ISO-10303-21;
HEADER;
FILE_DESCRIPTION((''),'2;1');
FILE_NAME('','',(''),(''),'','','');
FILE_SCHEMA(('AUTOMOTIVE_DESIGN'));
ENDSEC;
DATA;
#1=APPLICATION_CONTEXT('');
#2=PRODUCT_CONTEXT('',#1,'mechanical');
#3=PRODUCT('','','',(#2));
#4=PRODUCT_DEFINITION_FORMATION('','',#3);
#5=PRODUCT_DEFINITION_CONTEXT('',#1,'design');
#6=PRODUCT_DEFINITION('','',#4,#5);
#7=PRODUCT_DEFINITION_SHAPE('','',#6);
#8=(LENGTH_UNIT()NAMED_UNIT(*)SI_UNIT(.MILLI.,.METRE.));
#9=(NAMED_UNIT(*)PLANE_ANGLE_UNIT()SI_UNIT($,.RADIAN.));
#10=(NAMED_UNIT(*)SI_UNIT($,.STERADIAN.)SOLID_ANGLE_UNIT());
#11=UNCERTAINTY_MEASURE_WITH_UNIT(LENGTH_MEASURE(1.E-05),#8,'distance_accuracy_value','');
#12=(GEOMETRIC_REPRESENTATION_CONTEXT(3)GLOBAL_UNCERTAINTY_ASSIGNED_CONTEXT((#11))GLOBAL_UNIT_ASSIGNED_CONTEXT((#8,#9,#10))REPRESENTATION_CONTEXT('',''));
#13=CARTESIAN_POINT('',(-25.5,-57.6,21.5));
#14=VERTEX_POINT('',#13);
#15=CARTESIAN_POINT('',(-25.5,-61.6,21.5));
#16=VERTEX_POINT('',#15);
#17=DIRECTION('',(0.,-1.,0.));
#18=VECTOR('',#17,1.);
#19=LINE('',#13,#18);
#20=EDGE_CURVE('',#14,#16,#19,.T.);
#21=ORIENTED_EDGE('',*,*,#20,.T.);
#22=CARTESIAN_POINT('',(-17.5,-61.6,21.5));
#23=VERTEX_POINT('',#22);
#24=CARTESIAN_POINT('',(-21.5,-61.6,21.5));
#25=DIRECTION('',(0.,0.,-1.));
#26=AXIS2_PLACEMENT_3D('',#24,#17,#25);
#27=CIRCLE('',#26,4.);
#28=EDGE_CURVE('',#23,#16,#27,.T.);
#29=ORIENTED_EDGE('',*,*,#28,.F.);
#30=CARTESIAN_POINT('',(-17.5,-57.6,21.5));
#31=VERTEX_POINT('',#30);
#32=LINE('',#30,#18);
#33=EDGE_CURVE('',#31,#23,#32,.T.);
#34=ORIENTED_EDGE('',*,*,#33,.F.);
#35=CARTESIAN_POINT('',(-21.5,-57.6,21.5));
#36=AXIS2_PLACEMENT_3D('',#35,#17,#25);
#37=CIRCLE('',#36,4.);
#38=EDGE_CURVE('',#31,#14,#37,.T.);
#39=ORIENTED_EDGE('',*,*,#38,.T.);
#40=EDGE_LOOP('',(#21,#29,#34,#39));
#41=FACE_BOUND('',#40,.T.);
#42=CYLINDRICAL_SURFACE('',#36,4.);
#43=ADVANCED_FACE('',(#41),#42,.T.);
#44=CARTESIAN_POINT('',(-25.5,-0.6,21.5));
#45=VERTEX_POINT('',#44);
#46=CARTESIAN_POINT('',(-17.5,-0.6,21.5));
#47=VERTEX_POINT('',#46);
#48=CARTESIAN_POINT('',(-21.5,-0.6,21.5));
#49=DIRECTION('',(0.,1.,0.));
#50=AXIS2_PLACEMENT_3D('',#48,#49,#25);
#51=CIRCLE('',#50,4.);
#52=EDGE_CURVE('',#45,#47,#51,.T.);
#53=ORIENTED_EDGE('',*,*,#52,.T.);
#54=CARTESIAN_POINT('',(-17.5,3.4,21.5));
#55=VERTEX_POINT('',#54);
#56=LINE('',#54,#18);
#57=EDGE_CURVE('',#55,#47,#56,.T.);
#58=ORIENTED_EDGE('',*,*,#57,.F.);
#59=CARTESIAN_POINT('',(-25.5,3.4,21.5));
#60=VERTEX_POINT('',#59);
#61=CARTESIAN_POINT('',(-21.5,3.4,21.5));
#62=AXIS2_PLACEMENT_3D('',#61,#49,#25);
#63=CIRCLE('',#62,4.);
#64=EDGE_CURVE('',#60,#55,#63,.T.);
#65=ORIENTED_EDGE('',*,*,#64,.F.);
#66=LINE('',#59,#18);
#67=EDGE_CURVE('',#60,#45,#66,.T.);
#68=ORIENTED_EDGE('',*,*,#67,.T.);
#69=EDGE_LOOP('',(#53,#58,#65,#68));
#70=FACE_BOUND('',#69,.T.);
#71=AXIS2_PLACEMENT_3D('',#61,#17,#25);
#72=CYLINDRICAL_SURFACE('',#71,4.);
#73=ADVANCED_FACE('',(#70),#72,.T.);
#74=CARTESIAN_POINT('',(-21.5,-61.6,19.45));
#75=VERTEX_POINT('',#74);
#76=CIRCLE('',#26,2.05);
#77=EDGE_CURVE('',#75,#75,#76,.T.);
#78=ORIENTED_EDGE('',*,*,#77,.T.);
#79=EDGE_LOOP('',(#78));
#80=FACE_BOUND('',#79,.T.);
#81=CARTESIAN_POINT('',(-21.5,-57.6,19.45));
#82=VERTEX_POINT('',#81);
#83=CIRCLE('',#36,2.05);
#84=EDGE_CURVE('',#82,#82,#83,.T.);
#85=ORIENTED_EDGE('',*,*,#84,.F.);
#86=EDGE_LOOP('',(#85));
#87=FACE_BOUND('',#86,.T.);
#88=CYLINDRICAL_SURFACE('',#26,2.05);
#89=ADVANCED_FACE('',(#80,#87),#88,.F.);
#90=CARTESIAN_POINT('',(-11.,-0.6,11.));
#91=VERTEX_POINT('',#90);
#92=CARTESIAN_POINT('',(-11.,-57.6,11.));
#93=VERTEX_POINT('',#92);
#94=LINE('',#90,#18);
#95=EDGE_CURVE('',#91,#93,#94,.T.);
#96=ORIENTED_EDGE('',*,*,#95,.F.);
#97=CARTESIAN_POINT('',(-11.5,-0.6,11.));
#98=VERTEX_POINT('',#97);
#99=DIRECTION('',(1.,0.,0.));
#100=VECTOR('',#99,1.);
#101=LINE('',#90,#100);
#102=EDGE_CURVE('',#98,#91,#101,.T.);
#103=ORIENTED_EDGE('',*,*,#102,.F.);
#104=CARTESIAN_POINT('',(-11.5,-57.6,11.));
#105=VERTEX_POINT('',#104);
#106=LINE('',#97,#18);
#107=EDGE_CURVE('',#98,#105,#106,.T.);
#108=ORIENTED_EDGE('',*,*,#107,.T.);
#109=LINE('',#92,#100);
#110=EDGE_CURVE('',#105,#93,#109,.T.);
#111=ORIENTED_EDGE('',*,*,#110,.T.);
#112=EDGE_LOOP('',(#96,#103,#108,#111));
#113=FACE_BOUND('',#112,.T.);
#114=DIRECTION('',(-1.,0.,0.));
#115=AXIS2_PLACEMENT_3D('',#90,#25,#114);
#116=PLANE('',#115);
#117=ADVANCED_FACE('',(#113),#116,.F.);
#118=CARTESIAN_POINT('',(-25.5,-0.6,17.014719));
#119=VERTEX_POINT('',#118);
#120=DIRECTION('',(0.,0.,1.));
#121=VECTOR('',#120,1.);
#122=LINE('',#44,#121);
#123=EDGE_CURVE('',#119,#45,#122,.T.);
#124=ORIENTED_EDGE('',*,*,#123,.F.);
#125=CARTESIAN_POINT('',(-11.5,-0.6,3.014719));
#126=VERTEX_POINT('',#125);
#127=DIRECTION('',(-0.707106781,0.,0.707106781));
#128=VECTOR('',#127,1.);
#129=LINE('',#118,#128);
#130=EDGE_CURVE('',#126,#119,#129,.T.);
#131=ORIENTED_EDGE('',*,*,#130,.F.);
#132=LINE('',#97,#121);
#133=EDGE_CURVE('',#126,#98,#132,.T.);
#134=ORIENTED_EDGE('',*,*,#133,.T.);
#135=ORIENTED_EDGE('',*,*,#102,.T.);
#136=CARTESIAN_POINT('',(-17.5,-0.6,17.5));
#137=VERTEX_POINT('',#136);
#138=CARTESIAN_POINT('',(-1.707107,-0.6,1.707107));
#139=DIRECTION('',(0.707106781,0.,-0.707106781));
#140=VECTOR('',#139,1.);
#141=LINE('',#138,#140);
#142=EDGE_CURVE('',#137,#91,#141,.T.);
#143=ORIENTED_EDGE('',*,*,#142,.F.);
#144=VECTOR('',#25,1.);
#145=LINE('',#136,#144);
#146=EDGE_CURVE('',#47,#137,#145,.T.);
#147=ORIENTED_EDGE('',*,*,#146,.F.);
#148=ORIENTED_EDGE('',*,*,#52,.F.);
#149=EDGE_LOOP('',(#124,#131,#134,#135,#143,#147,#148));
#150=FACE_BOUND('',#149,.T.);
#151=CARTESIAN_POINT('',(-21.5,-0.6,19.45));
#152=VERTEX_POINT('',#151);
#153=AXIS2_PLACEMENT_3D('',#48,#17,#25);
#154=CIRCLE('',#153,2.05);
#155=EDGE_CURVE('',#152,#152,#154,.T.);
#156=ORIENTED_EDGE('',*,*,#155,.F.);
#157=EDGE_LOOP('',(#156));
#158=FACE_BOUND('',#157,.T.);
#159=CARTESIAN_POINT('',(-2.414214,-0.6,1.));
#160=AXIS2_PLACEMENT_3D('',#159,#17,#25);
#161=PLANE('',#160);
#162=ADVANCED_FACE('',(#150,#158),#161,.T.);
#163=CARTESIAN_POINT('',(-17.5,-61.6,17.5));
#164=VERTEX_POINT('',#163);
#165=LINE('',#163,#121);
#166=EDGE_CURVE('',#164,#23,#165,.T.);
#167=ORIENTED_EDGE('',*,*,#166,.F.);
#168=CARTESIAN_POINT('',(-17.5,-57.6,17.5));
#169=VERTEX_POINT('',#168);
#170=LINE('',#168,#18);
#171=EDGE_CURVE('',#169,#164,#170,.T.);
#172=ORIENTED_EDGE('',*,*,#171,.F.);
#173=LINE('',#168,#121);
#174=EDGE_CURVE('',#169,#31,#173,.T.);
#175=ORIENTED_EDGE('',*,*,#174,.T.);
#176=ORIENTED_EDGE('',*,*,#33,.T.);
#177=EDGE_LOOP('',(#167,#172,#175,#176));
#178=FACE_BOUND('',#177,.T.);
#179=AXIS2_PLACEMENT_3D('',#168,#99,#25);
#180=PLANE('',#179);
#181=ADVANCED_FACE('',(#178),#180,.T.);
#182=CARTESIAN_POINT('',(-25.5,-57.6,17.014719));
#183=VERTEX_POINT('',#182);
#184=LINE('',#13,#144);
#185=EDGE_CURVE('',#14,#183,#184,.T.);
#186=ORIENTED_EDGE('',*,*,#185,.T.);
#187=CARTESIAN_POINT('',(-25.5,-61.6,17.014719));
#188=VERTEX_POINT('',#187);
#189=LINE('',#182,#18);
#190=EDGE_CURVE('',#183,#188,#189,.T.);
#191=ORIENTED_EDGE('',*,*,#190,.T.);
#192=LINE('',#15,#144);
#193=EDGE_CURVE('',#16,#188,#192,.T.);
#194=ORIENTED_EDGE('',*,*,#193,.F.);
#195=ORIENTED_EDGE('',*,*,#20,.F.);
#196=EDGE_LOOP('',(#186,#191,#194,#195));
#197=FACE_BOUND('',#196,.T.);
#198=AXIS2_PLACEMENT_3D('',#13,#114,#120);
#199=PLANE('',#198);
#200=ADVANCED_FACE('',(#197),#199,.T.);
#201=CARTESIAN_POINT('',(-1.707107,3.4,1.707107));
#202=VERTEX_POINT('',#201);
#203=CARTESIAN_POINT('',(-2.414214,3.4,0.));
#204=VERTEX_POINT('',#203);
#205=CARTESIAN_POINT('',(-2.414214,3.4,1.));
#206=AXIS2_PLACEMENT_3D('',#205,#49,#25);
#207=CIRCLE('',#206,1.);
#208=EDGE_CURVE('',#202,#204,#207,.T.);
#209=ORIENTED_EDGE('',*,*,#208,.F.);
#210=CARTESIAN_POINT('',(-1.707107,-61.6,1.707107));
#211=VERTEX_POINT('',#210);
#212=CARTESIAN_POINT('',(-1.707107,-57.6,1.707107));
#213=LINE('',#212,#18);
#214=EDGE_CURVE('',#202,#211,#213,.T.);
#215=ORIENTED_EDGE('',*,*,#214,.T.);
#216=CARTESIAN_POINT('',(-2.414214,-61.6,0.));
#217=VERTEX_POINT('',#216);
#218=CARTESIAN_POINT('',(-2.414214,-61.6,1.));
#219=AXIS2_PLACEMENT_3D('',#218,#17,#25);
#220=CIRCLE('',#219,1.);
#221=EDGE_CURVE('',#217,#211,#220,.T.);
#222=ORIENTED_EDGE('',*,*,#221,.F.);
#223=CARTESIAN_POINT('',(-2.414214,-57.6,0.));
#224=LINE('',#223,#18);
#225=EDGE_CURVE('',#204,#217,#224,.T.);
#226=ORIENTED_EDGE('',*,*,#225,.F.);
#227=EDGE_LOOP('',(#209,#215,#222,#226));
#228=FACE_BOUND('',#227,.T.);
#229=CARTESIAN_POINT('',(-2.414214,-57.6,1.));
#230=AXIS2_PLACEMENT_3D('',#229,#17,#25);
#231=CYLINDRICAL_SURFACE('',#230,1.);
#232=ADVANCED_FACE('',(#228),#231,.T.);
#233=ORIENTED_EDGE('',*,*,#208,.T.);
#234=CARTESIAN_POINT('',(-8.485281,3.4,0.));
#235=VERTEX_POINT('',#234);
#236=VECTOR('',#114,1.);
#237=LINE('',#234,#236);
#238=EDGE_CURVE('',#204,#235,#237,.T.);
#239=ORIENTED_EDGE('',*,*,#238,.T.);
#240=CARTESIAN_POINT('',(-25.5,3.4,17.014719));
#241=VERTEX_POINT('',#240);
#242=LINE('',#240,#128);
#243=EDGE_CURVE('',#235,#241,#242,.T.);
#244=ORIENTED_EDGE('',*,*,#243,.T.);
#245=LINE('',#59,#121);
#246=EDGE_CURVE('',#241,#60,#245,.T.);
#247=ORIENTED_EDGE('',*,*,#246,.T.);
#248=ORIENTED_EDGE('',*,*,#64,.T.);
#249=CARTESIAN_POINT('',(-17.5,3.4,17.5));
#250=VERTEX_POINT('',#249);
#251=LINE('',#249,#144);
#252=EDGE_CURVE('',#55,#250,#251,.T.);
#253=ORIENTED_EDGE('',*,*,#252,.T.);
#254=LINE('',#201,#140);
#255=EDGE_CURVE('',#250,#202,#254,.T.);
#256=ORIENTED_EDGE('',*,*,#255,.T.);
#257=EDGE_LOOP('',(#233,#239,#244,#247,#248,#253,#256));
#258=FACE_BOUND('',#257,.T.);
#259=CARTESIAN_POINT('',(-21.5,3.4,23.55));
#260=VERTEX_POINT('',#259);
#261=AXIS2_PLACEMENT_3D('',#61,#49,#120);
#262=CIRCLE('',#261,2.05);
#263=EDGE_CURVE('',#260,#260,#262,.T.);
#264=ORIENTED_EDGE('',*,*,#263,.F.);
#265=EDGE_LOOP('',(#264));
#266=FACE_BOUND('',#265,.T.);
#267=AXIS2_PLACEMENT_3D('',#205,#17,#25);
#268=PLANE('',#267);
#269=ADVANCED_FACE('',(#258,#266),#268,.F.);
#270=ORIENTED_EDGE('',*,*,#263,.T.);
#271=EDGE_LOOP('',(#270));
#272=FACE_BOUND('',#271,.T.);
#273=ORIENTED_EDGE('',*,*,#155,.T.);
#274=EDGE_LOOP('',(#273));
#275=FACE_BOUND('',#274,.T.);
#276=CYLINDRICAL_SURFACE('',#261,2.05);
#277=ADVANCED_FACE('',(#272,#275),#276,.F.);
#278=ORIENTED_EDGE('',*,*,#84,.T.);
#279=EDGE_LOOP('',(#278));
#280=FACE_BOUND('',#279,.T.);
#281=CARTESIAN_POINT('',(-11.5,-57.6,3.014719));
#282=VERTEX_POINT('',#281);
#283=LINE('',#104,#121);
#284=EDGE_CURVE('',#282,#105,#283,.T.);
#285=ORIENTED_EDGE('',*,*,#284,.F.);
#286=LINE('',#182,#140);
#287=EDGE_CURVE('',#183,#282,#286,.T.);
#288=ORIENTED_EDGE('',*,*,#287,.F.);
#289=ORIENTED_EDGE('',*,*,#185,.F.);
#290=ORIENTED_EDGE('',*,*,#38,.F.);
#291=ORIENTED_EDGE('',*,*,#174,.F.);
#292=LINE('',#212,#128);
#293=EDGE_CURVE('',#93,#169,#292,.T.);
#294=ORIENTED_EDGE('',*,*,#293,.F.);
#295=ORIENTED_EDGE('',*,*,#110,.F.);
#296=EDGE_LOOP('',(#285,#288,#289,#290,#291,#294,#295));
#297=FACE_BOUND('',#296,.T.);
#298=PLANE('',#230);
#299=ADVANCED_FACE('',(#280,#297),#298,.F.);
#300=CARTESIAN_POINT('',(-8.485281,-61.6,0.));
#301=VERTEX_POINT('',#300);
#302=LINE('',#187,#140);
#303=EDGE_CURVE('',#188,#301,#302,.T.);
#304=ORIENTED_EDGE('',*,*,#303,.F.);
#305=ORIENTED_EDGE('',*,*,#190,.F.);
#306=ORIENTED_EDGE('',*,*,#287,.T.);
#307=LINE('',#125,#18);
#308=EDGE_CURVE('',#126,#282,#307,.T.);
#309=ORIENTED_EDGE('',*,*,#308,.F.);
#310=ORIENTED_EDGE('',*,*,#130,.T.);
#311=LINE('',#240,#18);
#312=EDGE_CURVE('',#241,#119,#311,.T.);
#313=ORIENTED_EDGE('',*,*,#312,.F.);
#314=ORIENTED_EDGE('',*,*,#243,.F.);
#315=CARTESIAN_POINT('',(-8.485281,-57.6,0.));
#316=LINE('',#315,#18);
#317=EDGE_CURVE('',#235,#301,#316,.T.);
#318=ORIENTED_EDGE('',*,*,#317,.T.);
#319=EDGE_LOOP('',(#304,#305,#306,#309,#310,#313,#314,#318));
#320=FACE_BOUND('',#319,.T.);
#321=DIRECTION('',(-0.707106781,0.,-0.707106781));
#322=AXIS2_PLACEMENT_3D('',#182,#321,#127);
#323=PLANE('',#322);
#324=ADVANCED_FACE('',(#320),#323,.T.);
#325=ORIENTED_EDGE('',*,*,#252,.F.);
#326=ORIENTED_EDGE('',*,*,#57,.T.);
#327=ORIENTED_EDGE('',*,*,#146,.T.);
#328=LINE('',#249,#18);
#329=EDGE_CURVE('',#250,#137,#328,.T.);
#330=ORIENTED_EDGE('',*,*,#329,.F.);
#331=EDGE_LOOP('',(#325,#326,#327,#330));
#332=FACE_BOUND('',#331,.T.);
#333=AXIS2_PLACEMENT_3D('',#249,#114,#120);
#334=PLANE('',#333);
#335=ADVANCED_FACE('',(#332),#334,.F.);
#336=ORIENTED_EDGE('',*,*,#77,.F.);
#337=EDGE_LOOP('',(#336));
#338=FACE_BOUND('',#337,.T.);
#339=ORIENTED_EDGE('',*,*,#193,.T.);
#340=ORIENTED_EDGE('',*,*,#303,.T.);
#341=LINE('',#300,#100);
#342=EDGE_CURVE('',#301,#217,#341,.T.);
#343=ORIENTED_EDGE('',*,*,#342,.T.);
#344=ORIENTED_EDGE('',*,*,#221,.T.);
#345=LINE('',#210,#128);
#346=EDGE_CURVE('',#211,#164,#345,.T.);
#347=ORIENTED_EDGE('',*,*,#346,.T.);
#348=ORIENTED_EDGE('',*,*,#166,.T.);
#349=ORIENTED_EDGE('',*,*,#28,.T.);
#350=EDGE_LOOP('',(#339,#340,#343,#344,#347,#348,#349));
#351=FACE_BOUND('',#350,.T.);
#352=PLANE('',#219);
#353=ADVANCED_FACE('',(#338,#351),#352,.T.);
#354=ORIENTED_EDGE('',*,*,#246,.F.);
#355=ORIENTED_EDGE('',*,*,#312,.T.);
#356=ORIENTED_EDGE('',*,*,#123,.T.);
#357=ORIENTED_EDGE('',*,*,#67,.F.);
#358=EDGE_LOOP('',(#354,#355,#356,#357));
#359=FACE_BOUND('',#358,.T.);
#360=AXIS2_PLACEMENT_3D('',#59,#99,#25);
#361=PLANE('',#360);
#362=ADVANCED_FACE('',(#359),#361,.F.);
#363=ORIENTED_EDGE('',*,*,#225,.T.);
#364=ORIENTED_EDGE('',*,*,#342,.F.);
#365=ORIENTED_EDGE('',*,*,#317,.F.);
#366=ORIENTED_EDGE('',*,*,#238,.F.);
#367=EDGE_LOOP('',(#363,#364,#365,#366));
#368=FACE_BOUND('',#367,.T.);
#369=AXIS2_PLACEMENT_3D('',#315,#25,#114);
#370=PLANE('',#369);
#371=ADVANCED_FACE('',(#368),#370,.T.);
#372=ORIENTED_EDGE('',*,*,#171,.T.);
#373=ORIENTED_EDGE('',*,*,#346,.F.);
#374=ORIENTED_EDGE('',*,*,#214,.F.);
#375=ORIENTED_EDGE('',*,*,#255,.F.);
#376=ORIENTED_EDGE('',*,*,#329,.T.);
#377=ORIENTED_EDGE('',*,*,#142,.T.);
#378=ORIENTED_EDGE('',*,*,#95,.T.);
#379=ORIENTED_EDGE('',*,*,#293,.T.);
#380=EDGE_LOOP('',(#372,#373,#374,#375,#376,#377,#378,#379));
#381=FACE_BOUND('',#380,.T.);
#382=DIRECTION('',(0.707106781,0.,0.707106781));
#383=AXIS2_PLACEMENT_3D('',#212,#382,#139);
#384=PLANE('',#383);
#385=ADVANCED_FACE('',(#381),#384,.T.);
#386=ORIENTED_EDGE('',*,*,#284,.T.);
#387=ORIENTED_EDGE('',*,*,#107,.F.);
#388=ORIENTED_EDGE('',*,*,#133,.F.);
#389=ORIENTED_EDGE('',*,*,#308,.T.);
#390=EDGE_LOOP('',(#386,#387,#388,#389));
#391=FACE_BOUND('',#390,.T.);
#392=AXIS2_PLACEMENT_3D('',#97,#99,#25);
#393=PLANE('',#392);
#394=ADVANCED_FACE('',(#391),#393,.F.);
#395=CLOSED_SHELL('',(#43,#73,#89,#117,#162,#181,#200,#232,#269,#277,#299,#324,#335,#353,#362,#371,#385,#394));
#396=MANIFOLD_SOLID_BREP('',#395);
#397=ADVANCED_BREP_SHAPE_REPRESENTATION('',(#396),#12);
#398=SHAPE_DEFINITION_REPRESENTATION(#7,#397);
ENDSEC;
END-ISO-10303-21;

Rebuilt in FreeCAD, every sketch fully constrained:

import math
import FreeCAD as App
import Part
import Sketcher

V = App.Vector
Q = App.Units.Quantity

doc = App.newDocument("Part")
body = doc.addObject("PartDesign::Body", "Body")

# Sketch on XZ plane
sketch1 = body.newObject("Sketcher::SketchObject", "Sketch")
sketch1.AttachmentSupport = (doc.getObject("XZ_Plane"), [""])
sketch1.MapMode = "FlatFace"
sketch1.AttachmentOffset = App.Placement(V(0, 0, 61.6), App.Rotation())
sketch1.addGeometry([
    Part.LineSegment(V(-25.5, 17, 0), V(-8.5, 0, 0)),  # 0
    Part.LineSegment(V(-8.5, 0, 0), V(-2.4, 0, 0)),  # 1
    Part.ArcOfCircle(Part.Circle(V(-2.4, 1, 0), V(0, 0, 1), 1), math.radians(-90), math.radians(45)),  # 2
    Part.LineSegment(V(-1.7, 1.7, 0), V(-17.5, 17.5, 0)),  # 3
    Part.LineSegment(V(-17.5, 17.5, 0), V(-17.5, 21.5, 0)),  # 4
    Part.ArcOfCircle(Part.Circle(V(-21.5, 21.5, 0), V(0, 0, 1), 4), math.radians(0), math.radians(180)),  # 5
    Part.LineSegment(V(-25.5, 21.5, 0), V(-25.5, 17, 0)),  # 6
], False)
sketch1.addConstraint([
    Sketcher.Constraint("Coincident", 0, 2, 1, 1),
    Sketcher.Constraint("Tangent", 1, 2, 2, 1),
    Sketcher.Constraint("Tangent", 2, 2, 3, 1),
    Sketcher.Constraint("Coincident", 3, 2, 4, 1),
    Sketcher.Constraint("Tangent", 4, 2, 5, 1),
    Sketcher.Constraint("Tangent", 5, 2, 6, 1),
    Sketcher.Constraint("Coincident", 6, 2, 0, 1),
    Sketcher.Constraint("Horizontal", 1),
    Sketcher.Constraint("Vertical", 4),
    Sketcher.Constraint("Vertical", 6),
    Sketcher.Constraint("PointOnObject", 0, 2, -1),
    Sketcher.Constraint("Parallel", 0, 3),
    Sketcher.Constraint("Radius", 2, Q("1 mm")),
    Sketcher.Constraint("Radius", 5, Q("4 mm")),
    Sketcher.Constraint("DistanceY", 4, 1, 4, 2, Q("4 mm")),
    Sketcher.Constraint("Angle", 0, Q("-45 deg")),
    Sketcher.Constraint("DistanceX", 5, 3, -1, 1, Q("21.5 mm")),
    Sketcher.Constraint("DistanceY", -1, 1, 5, 3, Q("21.5 mm")),
    Sketcher.Constraint("DistanceY", 6, 2, 6, 1, Q("4.485281 mm")),
])
pad1 = body.newObject("PartDesign::Pad", "Pad")
pad1.Profile = sketch1
pad1.Length = 4
pad1.Reversed = True

# Sketch on XZ plane
sketch2 = body.newObject("Sketcher::SketchObject", "Sketch001")
sketch2.AttachmentSupport = (doc.getObject("XZ_Plane"), [""])
sketch2.MapMode = "FlatFace"
sketch2.AttachmentOffset = App.Placement(V(0, 0, 57.6), App.Rotation())
sketch2.addGeometry([
    Part.LineSegment(V(-11, 11, 0), V(-1.71, 1.71, 0)),  # 0
    Part.ArcOfCircle(Part.Circle(V(-2.41, 1, 0), V(0, 0, 1), 1), math.radians(-90), math.radians(45)),  # 1
    Part.LineSegment(V(-2.41, 0, 0), V(-8.49, 0, 0)),  # 2
    Part.LineSegment(V(-8.49, 0, 0), V(-11.5, 3.01, 0)),  # 3
    Part.LineSegment(V(-11.5, 3.01, 0), V(-11.5, 11, 0)),  # 4
    Part.LineSegment(V(-11.5, 11, 0), V(-11, 11, 0)),  # 5
], False)
sketch2.addConstraint([
    Sketcher.Constraint("Tangent", 0, 2, 1, 2),
    Sketcher.Constraint("Tangent", 1, 1, 2, 1),
    Sketcher.Constraint("Coincident", 2, 2, 3, 1),
    Sketcher.Constraint("Coincident", 3, 2, 4, 1),
    Sketcher.Constraint("Coincident", 4, 2, 5, 1),
    Sketcher.Constraint("Coincident", 5, 2, 0, 1),
    Sketcher.Constraint("Horizontal", 2),
    Sketcher.Constraint("Vertical", 4),
    Sketcher.Constraint("Horizontal", 5),
    Sketcher.Constraint("PointOnObject", 1, 1, -1),
    Sketcher.Constraint("Parallel", 0, 3),
    Sketcher.Constraint("Radius", 1, Q("1 mm")),
    Sketcher.Constraint("Angle", 0, Q("-45 deg")),
    Sketcher.Constraint("DistanceX", 5, 1, 5, 2, Q("0.5 mm")),
    Sketcher.Constraint("DistanceY", -1, 1, 4, 2, Q("11 mm")),
    Sketcher.Constraint("DistanceX", 5, 2, -1, 1, Q("11 mm")),
    Sketcher.Constraint("DistanceY", 4, 1, 4, 2, Q("7.985281 mm")),
])
pad2 = body.newObject("PartDesign::Pad", "Pad001")
pad2.Profile = sketch2
pad2.Length = 57
pad2.Reversed = True

# Sketch on XZ plane
sketch3 = body.newObject("Sketcher::SketchObject", "Sketch002")
sketch3.AttachmentSupport = (doc.getObject("XZ_Plane"), [""])
sketch3.MapMode = "FlatFace"
sketch3.AttachmentOffset = App.Placement(V(0, 0, 0.6), App.Rotation())
sketch3.addGeometry([
    Part.LineSegment(V(-2.4, 0, 0), V(-8.5, 0, 0)),  # 0
    Part.LineSegment(V(-8.5, 0, 0), V(-25.5, 17, 0)),  # 1
    Part.LineSegment(V(-25.5, 17, 0), V(-25.5, 21.5, 0)),  # 2
    Part.ArcOfCircle(Part.Circle(V(-21.5, 21.5, 0), V(0, 0, 1), 4), math.radians(0), math.radians(180)),  # 3
    Part.LineSegment(V(-17.5, 21.5, 0), V(-17.5, 17.5, 0)),  # 4
    Part.LineSegment(V(-17.5, 17.5, 0), V(-1.7, 1.7, 0)),  # 5
    Part.ArcOfCircle(Part.Circle(V(-2.4, 1, 0), V(0, 0, 1), 1), math.radians(-90), math.radians(45)),  # 6
], False)
sketch3.addConstraint([
    Sketcher.Constraint("Coincident", 0, 2, 1, 1),
    Sketcher.Constraint("Coincident", 1, 2, 2, 1),
    Sketcher.Constraint("Tangent", 2, 2, 3, 2),
    Sketcher.Constraint("Tangent", 3, 1, 4, 1),
    Sketcher.Constraint("Coincident", 4, 2, 5, 1),
    Sketcher.Constraint("Tangent", 5, 2, 6, 2),
    Sketcher.Constraint("Tangent", 6, 1, 0, 1),
    Sketcher.Constraint("Horizontal", 0),
    Sketcher.Constraint("Vertical", 2),
    Sketcher.Constraint("Vertical", 4),
    Sketcher.Constraint("PointOnObject", 0, 2, -1),
    Sketcher.Constraint("Parallel", 1, 5),
    Sketcher.Constraint("Radius", 3, Q("4 mm")),
    Sketcher.Constraint("Radius", 6, Q("1 mm")),
    Sketcher.Constraint("DistanceY", 4, 2, 4, 1, Q("4 mm")),
    Sketcher.Constraint("Angle", 1, Q("135 deg")),
    Sketcher.Constraint("DistanceX", 3, 3, -1, 1, Q("21.5 mm")),
    Sketcher.Constraint("DistanceY", -1, 1, 3, 3, Q("21.5 mm")),
    Sketcher.Constraint("DistanceY", 2, 1, 2, 2, Q("4.485281 mm")),
])
pad3 = body.newObject("PartDesign::Pad", "Pad002")
pad3.Profile = sketch3
pad3.Length = 4
pad3.Reversed = True

# Sketch on XZ plane
sketch4 = body.newObject("Sketcher::SketchObject", "Sketch003")
sketch4.AttachmentSupport = (doc.getObject("XZ_Plane"), [""])
sketch4.MapMode = "FlatFace"
sketch4.AttachmentOffset = App.Placement(V(0, 0, -3.4), App.Rotation())
sketch4.addGeometry(Part.Circle(V(-21.5, 21.5, 0), V(0, 0, 1), 2), False)
sketch4.addConstraint([
    Sketcher.Constraint("Diameter", 0, Q("4.1 mm")),
    Sketcher.Constraint("DistanceX", 0, 3, -1, 1, Q("21.5 mm")),
    Sketcher.Constraint("DistanceY", -1, 1, 0, 3, Q("21.5 mm")),
])
doc.recompute()
hole = body.newObject("PartDesign::Hole", "Hole")
hole.Profile = sketch4
hole.ThreadType = "None"
hole.Diameter = 4.1
hole.DepthType = "Dimension"
hole.Depth = 4
hole.DrillPoint = "Flat"
hole.Reversed = True

# Sketch on XZ plane
sketch5 = body.newObject("Sketcher::SketchObject", "Sketch004")
sketch5.AttachmentSupport = (doc.getObject("XZ_Plane"), [""])
sketch5.MapMode = "FlatFace"
sketch5.AttachmentOffset = App.Placement(V(0, 0, 61.6), App.Rotation())
sketch5.addGeometry(Part.Circle(V(-21.5, 21.5, 0), V(0, 0, 1), 2), False)
sketch5.addConstraint([
    Sketcher.Constraint("Diameter", 0, Q("4.1 mm")),
    Sketcher.Constraint("DistanceX", 0, 3, -1, 1, Q("21.5 mm")),
    Sketcher.Constraint("DistanceY", -1, 1, 0, 3, Q("21.5 mm")),
])
doc.recompute()
hole2 = body.newObject("PartDesign::Hole", "Hole001")
hole2.Profile = sketch5
hole2.ThreadType = "None"
hole2.Diameter = 4.1
hole2.DepthType = "Dimension"
hole2.Depth = 65
hole2.DrillPoint = "Flat"

doc.recompute()
